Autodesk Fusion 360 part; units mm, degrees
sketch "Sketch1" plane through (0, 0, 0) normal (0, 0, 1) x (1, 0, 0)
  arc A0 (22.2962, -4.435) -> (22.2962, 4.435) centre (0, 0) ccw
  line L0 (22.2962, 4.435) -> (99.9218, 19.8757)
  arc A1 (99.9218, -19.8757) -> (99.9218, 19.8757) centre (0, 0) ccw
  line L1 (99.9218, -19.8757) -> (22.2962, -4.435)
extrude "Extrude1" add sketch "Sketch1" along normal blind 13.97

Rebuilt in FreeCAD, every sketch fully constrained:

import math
import FreeCAD as App
import Part
import Sketcher
from FreeCAD import Vector
Q = App.Units.Quantity

doc = App.newDocument("Part")
body = doc.addObject("PartDesign::Body", "Body")

# Sketch on XY plane
sketch1 = doc.addObject("Sketcher::SketchObject", "Sketch")
body.addObject(sketch1)
sketch1.AttachmentSupport = (doc.XY_Plane, [""])
sketch1.MapMode = "FlatFace"
sketch1.addGeometry([
    Part.ArcOfCircle(Part.Circle(Vector(0, 0, 0), Vector(0, 0, 1), 22.73301), math.radians(-11.250025), math.radians(11.250025)),
    Part.LineSegment(Vector(22.2962, -4.435, 0), Vector(99.9218, -19.8757, 0)),
    Part.ArcOfCircle(Part.Circle(Vector(0, 0, 0), Vector(0, 0, 1), 101.879387), math.radians(-11.25001), math.radians(11.25001)),
    Part.LineSegment(Vector(99.9218, 19.8757, 0), Vector(22.2962, 4.435, 0)),
], False)
sketch1.addConstraint([
    Sketcher.Constraint("Coincident", 0, 1, 1, 1),
    Sketcher.Constraint("Coincident", 1, 2, 2, 1),
    Sketcher.Constraint("Coincident", 2, 2, 3, 1),
    Sketcher.Constraint("Coincident", 3, 2, 0, 2),
    Sketcher.Constraint("Coincident", 0, 3, -1, 1),
    Sketcher.Constraint("Coincident", 2, 3, -1, 1),
    Sketcher.Constraint("Vertical", 1, 2, 2, 2),
    Sketcher.Constraint("Vertical", 0, 1, 3, 2),
    Sketcher.Constraint("Radius", 0, Q("0.895 in")),
    Sketcher.Constraint("Radius", 2, Q("4.011 in")),
    Sketcher.Constraint("Angle", 1, Q("-11.25 deg")),
    Sketcher.Constraint("DistanceX", -1, 1, 0, 1, Q("0.8778 in")),
])
pad1 = doc.addObject("PartDesign::Pad", "Pad")
body.addObject(pad1)
pad1.Profile = sketch1
pad1.Length = Q("0.55 in")

doc.recompute()
